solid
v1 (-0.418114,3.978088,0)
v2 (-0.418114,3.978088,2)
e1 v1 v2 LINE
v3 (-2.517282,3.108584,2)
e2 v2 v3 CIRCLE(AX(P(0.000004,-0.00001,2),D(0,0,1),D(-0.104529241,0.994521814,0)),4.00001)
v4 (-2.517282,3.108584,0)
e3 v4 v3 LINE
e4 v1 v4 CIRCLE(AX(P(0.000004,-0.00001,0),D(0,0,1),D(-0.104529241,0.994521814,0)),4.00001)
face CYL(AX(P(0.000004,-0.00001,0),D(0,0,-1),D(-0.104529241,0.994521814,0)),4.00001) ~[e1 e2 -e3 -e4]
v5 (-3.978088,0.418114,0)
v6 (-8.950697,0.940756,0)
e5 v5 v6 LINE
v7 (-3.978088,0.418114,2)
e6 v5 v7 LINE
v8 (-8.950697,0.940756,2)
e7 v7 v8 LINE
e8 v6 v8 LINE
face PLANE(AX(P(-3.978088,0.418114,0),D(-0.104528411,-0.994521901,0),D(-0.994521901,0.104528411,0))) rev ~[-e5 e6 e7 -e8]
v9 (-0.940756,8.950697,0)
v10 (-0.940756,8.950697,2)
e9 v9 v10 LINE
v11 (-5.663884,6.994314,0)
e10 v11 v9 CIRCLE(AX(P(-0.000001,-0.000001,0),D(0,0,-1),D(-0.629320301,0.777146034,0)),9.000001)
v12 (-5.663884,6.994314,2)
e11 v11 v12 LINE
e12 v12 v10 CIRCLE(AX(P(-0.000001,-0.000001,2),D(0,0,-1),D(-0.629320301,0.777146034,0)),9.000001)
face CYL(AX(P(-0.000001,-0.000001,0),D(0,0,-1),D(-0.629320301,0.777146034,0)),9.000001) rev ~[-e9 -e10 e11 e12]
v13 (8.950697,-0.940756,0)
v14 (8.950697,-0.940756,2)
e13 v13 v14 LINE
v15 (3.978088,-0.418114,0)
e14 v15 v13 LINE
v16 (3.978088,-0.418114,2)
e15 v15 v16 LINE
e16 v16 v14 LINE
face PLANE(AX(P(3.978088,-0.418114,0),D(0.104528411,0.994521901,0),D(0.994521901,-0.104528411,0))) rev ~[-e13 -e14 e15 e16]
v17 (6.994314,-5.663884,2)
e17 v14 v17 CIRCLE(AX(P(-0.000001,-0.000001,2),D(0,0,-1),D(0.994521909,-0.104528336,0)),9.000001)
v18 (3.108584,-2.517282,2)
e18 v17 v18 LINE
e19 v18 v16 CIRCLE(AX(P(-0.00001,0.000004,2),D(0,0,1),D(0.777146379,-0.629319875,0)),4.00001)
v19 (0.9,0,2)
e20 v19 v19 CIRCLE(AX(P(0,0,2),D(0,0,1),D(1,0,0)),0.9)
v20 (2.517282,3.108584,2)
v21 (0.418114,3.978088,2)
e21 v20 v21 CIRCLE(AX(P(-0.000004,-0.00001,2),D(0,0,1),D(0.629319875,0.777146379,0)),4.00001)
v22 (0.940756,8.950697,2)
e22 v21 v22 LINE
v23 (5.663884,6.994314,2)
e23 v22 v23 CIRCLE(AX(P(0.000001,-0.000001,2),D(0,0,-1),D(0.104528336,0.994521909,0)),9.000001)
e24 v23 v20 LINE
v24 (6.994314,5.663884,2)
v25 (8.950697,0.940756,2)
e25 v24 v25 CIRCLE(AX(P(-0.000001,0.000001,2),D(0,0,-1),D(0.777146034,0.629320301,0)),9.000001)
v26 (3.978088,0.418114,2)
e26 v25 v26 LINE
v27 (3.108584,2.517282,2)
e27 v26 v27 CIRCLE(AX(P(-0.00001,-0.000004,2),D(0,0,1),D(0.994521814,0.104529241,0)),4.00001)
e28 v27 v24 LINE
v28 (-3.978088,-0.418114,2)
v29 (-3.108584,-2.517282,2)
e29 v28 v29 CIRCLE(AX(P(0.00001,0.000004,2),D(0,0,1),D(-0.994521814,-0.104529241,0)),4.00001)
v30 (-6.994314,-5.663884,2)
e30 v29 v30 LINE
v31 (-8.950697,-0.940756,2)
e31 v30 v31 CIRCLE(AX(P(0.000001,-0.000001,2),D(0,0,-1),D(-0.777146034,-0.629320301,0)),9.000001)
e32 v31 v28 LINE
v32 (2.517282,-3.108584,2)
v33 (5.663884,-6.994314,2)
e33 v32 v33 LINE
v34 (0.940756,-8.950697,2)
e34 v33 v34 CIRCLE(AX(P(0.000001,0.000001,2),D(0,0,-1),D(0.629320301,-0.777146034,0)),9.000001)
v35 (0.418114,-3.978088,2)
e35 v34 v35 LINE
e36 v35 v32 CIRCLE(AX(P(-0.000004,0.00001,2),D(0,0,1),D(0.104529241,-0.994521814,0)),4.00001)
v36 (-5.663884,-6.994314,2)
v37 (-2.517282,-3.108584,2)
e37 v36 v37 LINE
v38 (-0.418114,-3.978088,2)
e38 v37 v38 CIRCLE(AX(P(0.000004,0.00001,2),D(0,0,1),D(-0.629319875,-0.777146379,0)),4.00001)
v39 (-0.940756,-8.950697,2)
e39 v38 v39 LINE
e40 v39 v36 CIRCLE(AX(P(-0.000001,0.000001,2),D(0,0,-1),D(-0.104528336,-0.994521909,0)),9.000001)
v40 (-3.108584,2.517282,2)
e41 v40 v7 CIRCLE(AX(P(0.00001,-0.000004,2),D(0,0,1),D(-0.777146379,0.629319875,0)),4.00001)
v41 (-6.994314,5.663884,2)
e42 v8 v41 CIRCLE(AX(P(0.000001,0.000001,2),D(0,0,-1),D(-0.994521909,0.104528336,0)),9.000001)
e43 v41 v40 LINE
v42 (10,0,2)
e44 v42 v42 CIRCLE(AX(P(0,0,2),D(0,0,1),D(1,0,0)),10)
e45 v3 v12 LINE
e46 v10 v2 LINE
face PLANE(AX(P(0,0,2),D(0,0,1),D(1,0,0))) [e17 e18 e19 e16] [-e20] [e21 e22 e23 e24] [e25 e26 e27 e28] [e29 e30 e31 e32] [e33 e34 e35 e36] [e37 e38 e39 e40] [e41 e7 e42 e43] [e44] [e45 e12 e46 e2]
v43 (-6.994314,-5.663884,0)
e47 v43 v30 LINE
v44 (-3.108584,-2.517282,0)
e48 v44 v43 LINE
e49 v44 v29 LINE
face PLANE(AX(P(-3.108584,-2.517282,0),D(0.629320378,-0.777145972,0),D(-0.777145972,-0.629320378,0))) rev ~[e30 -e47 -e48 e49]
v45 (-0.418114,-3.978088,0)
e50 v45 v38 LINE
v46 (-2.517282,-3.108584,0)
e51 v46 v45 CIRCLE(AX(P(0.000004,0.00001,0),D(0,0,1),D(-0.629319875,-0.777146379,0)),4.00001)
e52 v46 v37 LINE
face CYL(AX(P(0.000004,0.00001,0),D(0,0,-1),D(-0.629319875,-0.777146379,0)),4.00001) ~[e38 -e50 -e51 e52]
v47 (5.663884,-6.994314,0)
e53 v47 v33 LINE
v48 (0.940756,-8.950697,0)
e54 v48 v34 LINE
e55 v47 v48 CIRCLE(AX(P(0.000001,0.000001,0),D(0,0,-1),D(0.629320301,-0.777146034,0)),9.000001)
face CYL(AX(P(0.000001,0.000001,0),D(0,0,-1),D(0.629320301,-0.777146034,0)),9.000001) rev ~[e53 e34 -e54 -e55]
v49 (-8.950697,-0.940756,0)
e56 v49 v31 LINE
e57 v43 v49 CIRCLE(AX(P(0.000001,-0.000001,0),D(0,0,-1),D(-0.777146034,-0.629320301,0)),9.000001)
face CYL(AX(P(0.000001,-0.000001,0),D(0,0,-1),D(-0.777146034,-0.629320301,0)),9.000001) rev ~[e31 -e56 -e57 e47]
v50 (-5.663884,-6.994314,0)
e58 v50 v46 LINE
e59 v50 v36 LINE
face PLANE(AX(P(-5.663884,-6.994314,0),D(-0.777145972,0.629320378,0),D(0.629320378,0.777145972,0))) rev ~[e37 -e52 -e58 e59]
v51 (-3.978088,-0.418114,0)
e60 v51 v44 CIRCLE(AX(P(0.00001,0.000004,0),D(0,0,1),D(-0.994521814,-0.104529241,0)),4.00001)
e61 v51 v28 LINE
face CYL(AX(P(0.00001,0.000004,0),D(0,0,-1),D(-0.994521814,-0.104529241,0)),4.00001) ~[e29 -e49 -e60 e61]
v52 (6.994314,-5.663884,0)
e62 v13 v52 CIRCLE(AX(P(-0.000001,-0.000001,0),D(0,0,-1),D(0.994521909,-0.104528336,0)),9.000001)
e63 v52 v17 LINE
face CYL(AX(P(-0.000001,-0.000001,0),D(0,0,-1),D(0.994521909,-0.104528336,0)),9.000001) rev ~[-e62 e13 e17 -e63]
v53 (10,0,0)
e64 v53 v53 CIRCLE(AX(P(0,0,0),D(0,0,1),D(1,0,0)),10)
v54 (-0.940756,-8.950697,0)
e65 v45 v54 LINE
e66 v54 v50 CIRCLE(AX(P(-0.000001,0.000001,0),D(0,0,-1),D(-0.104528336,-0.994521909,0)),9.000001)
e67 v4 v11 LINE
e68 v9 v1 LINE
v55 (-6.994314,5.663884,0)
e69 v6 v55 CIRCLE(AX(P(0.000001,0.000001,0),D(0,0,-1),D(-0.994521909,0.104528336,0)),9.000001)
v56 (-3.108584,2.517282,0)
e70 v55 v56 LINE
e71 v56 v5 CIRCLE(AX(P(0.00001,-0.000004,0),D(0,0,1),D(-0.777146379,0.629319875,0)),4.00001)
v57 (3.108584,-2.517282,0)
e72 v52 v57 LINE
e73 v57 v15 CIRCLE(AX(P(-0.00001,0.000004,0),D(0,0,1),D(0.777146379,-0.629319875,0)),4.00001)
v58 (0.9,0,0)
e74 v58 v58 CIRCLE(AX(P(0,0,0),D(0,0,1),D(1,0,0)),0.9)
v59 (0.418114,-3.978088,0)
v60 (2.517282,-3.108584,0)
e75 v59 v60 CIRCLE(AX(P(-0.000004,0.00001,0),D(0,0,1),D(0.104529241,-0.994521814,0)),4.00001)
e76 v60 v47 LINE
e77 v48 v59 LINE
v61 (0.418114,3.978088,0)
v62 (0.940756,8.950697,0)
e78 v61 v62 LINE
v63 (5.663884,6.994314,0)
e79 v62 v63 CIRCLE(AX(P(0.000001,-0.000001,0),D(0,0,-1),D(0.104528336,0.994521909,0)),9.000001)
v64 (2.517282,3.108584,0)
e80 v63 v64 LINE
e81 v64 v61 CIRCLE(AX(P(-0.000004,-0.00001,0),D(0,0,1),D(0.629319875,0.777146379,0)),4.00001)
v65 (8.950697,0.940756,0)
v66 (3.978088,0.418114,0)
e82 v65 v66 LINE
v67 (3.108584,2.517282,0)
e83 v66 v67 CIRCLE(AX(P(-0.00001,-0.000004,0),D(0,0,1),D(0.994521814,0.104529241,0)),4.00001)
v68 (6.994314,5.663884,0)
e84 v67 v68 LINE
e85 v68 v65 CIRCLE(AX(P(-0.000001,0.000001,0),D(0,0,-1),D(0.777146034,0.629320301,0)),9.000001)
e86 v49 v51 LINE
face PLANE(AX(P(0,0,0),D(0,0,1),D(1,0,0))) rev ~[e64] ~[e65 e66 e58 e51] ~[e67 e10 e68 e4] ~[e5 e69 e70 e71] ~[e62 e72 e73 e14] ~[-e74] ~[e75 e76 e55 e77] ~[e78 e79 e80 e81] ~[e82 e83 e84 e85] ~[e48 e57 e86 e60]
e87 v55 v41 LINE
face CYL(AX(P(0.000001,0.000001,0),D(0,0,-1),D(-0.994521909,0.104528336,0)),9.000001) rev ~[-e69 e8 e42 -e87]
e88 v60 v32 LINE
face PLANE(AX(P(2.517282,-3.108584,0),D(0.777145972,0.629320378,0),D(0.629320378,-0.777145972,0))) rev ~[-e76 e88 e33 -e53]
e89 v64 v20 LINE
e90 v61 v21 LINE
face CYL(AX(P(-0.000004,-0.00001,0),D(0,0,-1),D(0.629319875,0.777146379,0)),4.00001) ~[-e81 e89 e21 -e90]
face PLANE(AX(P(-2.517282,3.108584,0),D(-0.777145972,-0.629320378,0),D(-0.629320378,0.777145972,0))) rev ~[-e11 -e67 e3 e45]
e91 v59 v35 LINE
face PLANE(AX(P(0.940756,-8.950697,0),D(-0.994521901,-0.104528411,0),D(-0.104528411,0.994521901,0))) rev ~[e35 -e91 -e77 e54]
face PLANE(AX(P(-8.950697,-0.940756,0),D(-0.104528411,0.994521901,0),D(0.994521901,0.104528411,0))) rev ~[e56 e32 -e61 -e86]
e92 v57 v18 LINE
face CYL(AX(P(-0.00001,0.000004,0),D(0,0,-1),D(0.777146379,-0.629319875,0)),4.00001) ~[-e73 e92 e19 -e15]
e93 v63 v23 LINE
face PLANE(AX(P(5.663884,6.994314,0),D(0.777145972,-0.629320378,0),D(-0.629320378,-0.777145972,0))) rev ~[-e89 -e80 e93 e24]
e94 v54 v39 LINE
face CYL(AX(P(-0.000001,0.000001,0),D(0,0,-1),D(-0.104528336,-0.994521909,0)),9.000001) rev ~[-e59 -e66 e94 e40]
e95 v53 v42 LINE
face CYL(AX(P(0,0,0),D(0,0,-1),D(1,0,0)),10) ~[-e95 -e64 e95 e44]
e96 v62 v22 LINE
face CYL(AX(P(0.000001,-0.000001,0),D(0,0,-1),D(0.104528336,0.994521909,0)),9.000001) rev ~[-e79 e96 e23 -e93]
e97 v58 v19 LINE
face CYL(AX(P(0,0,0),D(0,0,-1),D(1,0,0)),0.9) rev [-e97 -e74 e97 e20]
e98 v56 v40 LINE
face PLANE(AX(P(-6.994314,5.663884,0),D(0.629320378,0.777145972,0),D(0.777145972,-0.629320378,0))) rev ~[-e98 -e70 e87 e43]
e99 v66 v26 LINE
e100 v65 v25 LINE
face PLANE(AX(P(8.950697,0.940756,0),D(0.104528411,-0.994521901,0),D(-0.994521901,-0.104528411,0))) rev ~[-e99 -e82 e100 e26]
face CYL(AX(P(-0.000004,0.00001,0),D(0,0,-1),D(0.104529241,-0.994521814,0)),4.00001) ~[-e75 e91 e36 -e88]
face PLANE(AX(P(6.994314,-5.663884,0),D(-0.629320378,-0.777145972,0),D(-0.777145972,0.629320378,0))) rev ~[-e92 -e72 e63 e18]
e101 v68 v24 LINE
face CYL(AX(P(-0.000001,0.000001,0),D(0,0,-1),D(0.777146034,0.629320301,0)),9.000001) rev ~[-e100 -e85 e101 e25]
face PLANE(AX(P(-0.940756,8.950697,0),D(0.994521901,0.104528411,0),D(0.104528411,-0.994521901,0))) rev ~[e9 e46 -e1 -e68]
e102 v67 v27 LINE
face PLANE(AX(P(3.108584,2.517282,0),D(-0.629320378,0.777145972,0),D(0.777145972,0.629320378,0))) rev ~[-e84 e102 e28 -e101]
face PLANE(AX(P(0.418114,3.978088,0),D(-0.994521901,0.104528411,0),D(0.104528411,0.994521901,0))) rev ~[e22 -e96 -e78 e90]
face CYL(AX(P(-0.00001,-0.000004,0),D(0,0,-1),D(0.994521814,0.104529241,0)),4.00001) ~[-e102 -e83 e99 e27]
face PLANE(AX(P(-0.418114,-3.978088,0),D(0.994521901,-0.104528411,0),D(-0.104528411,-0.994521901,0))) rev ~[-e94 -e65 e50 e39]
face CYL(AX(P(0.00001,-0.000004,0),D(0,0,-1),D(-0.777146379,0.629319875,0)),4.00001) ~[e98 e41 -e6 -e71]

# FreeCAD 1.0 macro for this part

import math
import FreeCAD as App
import Part
import Sketcher
Q = App.Units.Quantity

doc = App.newDocument("Part")
body = doc.addObject("PartDesign::Body", "Body")

# Sketch on XY plane
sketch1 = body.newObject("Sketcher::SketchObject", "Sketch")
sketch1.AttachmentSupport = (doc.getObject("XY_Plane"), [""])
sketch1.MapMode = "FlatFace"
sketch1.addGeometry([
    Part.Circle(App.Vector(0, 0, 0), App.Vector(0, 0, 1), 10),  # 0
    Part.LineSegment(App.Vector(-5.663884, -6.994314, 0), App.Vector(-2.517282, -3.108584, 0)),  # 1
    Part.ArcOfCircle(Part.Circle(App.Vector(0.000004, 0.00001, 0), App.Vector(0, 0, 1), 4.00001), math.radians(-128.999962), math.radians(-96.000045)),  # 2
    Part.LineSegment(App.Vector(-0.418114, -3.978088, 0), App.Vector(-0.940756, -8.950697, 0)),  # 3
    Part.ArcOfCircle(Part.Circle(App.Vector(-0.000001, 0.000001, 0), App.Vector(0, 0, 1), 9.000001), math.radians(-128.999993), math.radians(-95.999993)),  # 4
    Part.LineSegment(App.Vector(-3.108584, -2.517282, 0), App.Vector(-6.994314, -5.663884, 0)),  # 5
    Part.ArcOfCircle(Part.Circle(App.Vector(0.000001, -0.000001, 0), App.Vector(0, 0, 1), 9.000001), math.radians(-174.000007), math.radians(-141.000007)),  # 6
    Part.LineSegment(App.Vector(-8.950697, -0.940756, 0), App.Vector(-3.978088, -0.418114, 0)),  # 7
    Part.ArcOfCircle(Part.Circle(App.Vector(0.00001, 0.000004, 0), App.Vector(0, 0, 1), 4.00001), math.radians(-173.999955), math.radians(-141.000038)),  # 8
    Part.LineSegment(App.Vector(0.940756, -8.950697, 0), App.Vector(0.418114, -3.978088, 0)),  # 9
    Part.ArcOfCircle(Part.Circle(App.Vector(-0.000004, 0.00001, 0), App.Vector(0, 0, 1), 4.00001), math.radians(-83.999955), math.radians(-51.000038)),  # 10
    Part.LineSegment(App.Vector(2.517282, -3.108584, 0), App.Vector(5.663884, -6.994314, 0)),  # 11
    Part.ArcOfCircle(Part.Circle(App.Vector(0.000001, 0.000001, 0), App.Vector(0, 0, 1), 9.000001), math.radians(-84.000007), math.radians(-51.000007)),  # 12
    Part.ArcOfCircle(Part.Circle(App.Vector(-0.000001, -0.000001, 0), App.Vector(0, 0, 1), 9.000001), math.radians(-38.999993), math.radians(-5.999993)),  # 13
    Part.LineSegment(App.Vector(6.994314, -5.663884, 0), App.Vector(3.108584, -2.517282, 0)),  # 14
    Part.ArcOfCircle(Part.Circle(App.Vector(-0.00001, 0.000004, 0), App.Vector(0, 0, 1), 4.00001), math.radians(-38.999962), math.radians(-6.000045)),  # 15
    Part.LineSegment(App.Vector(3.978088, -0.418114, 0), App.Vector(8.950697, -0.940756, 0)),  # 16
    Part.ArcOfCircle(Part.Circle(App.Vector(0.000001, 0.000001, 0), App.Vector(0, 0, 1), 9.000001), math.radians(141.000007), math.radians(174.000007)),  # 17
    Part.LineSegment(App.Vector(-6.994314, 5.663884, 0), App.Vector(-3.108584, 2.517282, 0)),  # 18
    Part.ArcOfCircle(Part.Circle(App.Vector(0.00001, -0.000004, 0), App.Vector(0, 0, 1), 4.00001), math.radians(141.000038), math.radians(173.999955)),  # 19
    Part.LineSegment(App.Vector(-3.978088, 0.418114, 0), App.Vector(-8.950697, 0.940756, 0)),  # 20
    Part.ArcOfCircle(Part.Circle(App.Vector(-0.000001, -0.000001, 0), App.Vector(0, 0, 1), 9.000001), math.radians(95.999993), math.radians(128.999993)),  # 21
    Part.LineSegment(App.Vector(-0.940756, 8.950697, 0), App.Vector(-0.418114, 3.978088, 0)),  # 22
    Part.ArcOfCircle(Part.Circle(App.Vector(0.000004, -0.00001, 0), App.Vector(0, 0, 1), 4.00001), math.radians(96.000045), math.radians(128.999962)),  # 23
    Part.LineSegment(App.Vector(-2.517282, 3.108584, 0), App.Vector(-5.663884, 6.994314, 0)),  # 24
    Part.Circle(App.Vector(0, 0, 0), App.Vector(0, 0, 1), 0.9),  # 25
    Part.LineSegment(App.Vector(8.950697, 0.940756, 0), App.Vector(3.978088, 0.418114, 0)),  # 26
    Part.ArcOfCircle(Part.Circle(App.Vector(-0.00001, -0.000004, 0), App.Vector(0, 0, 1), 4.00001), math.radians(6.000045), math.radians(38.999962)),  # 27
    Part.LineSegment(App.Vector(3.108584, 2.517282, 0), App.Vector(6.994314, 5.663884, 0)),  # 28
    Part.ArcOfCircle(Part.Circle(App.Vector(-0.000001, 0.000001, 0), App.Vector(0, 0, 1), 9.000001), math.radians(5.999993), math.radians(38.999993)),  # 29
    Part.ArcOfCircle(Part.Circle(App.Vector(0.000001, -0.000001, 0), App.Vector(0, 0, 1), 9.000001), math.radians(51.000007), math.radians(84.000007)),  # 30
    Part.LineSegment(App.Vector(5.663884, 6.994314, 0), App.Vector(2.517282, 3.108584, 0)),  # 31
    Part.ArcOfCircle(Part.Circle(App.Vector(-0.000004, -0.00001, 0), App.Vector(0, 0, 1), 4.00001), math.radians(51.000038), math.radians(83.999955)),  # 32
    Part.LineSegment(App.Vector(0.418114, 3.978088, 0), App.Vector(0.940756, 8.950697, 0)),  # 33
], False)
sketch1.addConstraint([
    Sketcher.Constraint("Coincident", 1, 2, 2, 1),
    Sketcher.Constraint("Coincident", 2, 2, 3, 1),
    Sketcher.Constraint("Coincident", 3, 2, 4, 2),
    Sketcher.Constraint("Coincident", 4, 1, 1, 1),
    Sketcher.Constraint("Coincident", 5, 2, 6, 2),
    Sketcher.Constraint("Coincident", 6, 1, 7, 1),
    Sketcher.Constraint("Coincident", 7, 2, 8, 1),
    Sketcher.Constraint("Coincident", 8, 2, 5, 1),
    Sketcher.Constraint("Coincident", 9, 2, 10, 1),
    Sketcher.Constraint("Coincident", 10, 2, 11, 1),
    Sketcher.Constraint("Coincident", 11, 2, 12, 2),
    Sketcher.Constraint("Coincident", 12, 1, 9, 1),
    Sketcher.Constraint("Coincident", 13, 1, 14, 1),
    Sketcher.Constraint("Coincident", 14, 2, 15, 1),
    Sketcher.Constraint("Coincident", 15, 2, 16, 1),
    Sketcher.Constraint("Coincident", 16, 2, 13, 2),
    Sketcher.Constraint("Coincident", 17, 1, 18, 1),
    Sketcher.Constraint("Coincident", 18, 2, 19, 1),
    Sketcher.Constraint("Coincident", 19, 2, 20, 1),
    Sketcher.Constraint("Coincident", 20, 2, 17, 2),
    Sketcher.Constraint("Coincident", 21, 1, 22, 1),
    Sketcher.Constraint("Coincident", 22, 2, 23, 1),
    Sketcher.Constraint("Coincident", 23, 2, 24, 1),
    Sketcher.Constraint("Coincident", 24, 2, 21, 2),
    Sketcher.Constraint("Coincident", 26, 2, 27, 1),
    Sketcher.Constraint("Coincident", 27, 2, 28, 1),
    Sketcher.Constraint("Coincident", 28, 2, 29, 2),
    Sketcher.Constraint("Coincident", 29, 1, 26, 1),
    Sketcher.Constraint("Coincident", 30, 1, 31, 1),
    Sketcher.Constraint("Coincident", 31, 2, 32, 1),
    Sketcher.Constraint("Coincident", 32, 2, 33, 1),
    Sketcher.Constraint("Coincident", 33, 2, 30, 2),
    Sketcher.Constraint("Coincident", 0, 3, -1, 1),
    Sketcher.Constraint("Coincident", 4, 3, -1, 1),
    Sketcher.Constraint("Coincident", 6, 3, -1, 1),
    Sketcher.Constraint("Coincident", 12, 3, -1, 1),
    Sketcher.Constraint("Coincident", 13, 3, -1, 1),
    Sketcher.Constraint("Coincident", 17, 3, -1, 1),
    Sketcher.Constraint("Coincident", 21, 3, -1, 1),
    Sketcher.Constraint("Coincident", 25, 3, -1, 1),
    Sketcher.Constraint("Coincident", 29, 3, -1, 1),
    Sketcher.Constraint("Coincident", 30, 3, -1, 1),
    Sketcher.Constraint("Coincident", 8, 3, 2, 3),
    Sketcher.Constraint("Coincident", 10, 3, 2, 3),
    Sketcher.Constraint("Coincident", 15, 3, 4, 3),
    Sketcher.Constraint("Coincident", 19, 3, 6, 3),
    Sketcher.Constraint("Coincident", 23, 3, 6, 3),
    Sketcher.Constraint("Coincident", 27, 3, 4, 3),
    Sketcher.Constraint("Coincident", 32, 3, 6, 3),
    Sketcher.Constraint("Equal", 4, 6),
    Sketcher.Constraint("Equal", 2, 8),
    Sketcher.Constraint("Equal", 8, 10),
    Sketcher.Constraint("Equal", 6, 12),
    Sketcher.Constraint("Equal", 12, 13),
    Sketcher.Constraint("Equal", 10, 15),
    Sketcher.Constraint("Equal", 13, 17),
    Sketcher.Constraint("Equal", 15, 19),
    Sketcher.Constraint("Equal", 17, 21),
    Sketcher.Constraint("Equal", 19, 23),
    Sketcher.Constraint("Equal", 23, 27),
    Sketcher.Constraint("Equal", 21, 29),
    Sketcher.Constraint("Equal", 29, 30),
    Sketcher.Constraint("Equal", 27, 32),
    Sketcher.Constraint("Symmetric", 4, 3, 8, 3, -1, 1),
    Sketcher.Constraint("Perpendicular", 7, 9),
    Sketcher.Constraint("Perpendicular", 5, 11),
    Sketcher.Constraint("Perpendicular", 1, 14),
    Sketcher.Constraint("Perpendicular", 3, 16),
    Sketcher.Constraint("Parallel", 14, 18),
    Sketcher.Constraint("Parallel", 16, 20),
    Sketcher.Constraint("Parallel", 9, 22),
    Sketcher.Constraint("Parallel", 11, 24),
    Sketcher.Constraint("Perpendicular", 22, 26),
    Sketcher.Constraint("Perpendicular", 24, 28),
    Sketcher.Constraint("Perpendicular", 18, 31),
    Sketcher.Constraint("Perpendicular", 20, 33),
    Sketcher.Constraint("Horizontal", 2, 2, 9, 2),
    Sketcher.Constraint("Horizontal", 1, 2, 10, 2),
    Sketcher.Constraint("Horizontal", 4, 1, 11, 2),
    Sketcher.Constraint("Horizontal", 3, 2, 12, 1),
    Sketcher.Constraint("Horizontal", 5, 2, 13, 1),
    Sketcher.Constraint("Horizontal", 7, 2, 15, 2),
    Sketcher.Constraint("Horizontal", 19, 2, 26, 2),
    Sketcher.Constraint("Horizontal", 18, 2, 27, 2),
    Sketcher.Constraint("Horizontal", 24, 2, 30, 1),
    Sketcher.Constraint("Horizontal", 22, 2, 32, 2),
    Sketcher.Constraint("Vertical", 5, 2, 17, 1),
    Sketcher.Constraint("Vertical", 7, 2, 19, 2),
    Sketcher.Constraint("Vertical", 3, 2, 21, 1),
    Sketcher.Constraint("Vertical", 1, 2, 23, 2),
    Sketcher.Constraint("Diameter", 0, 20.0),
    Sketcher.Constraint("Radius", 4, 9.000001),
    Sketcher.Constraint("Diameter", 25, 1.8),
    Sketcher.Constraint("Angle", 1, Q("51.000001 deg")),
    Sketcher.Constraint("Angle", 3, Q("-95.999997 deg")),
    Sketcher.Constraint("Distance", 1, 5.0),
    Sketcher.Constraint("DistanceX", 2, 2, 11, 2, 6.081998),
    Sketcher.Constraint("DistanceY", 7, 2, 17, 1, 6.081998),
    Sketcher.Constraint("DistanceY", 5, 2, 1, 2, 2.5553),
    Sketcher.Constraint("DistanceX", 5, 2, 2, 2, 6.5762),
])
pad1 = body.newObject("PartDesign::Pad", "Pad")
pad1.Profile = sketch1
pad1.Length = 2

doc.recompute()
